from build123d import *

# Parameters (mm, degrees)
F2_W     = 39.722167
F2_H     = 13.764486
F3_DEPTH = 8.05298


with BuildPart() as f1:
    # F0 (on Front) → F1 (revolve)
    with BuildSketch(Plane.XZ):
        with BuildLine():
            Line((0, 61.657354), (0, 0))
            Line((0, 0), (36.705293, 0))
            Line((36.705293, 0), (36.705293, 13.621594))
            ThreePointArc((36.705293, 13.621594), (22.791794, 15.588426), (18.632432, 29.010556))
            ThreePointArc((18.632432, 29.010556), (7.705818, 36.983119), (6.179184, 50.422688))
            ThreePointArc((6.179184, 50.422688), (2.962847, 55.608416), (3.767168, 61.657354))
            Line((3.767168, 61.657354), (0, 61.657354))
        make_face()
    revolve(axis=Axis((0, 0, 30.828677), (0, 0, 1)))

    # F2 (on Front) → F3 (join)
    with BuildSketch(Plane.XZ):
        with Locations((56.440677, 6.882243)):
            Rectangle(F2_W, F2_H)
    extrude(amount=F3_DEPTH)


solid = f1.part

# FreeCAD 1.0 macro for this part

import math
import FreeCAD as App
import Part
import Sketcher

V = App.Vector


def add_polygon(sketch, points):
    """Adds a closed chain of lines whose ends are joined by coincident constraints."""
    first, n = sketch.GeometryCount, len(points)
    for a, b in zip(points, points[1:] + points[:1]):
        sketch.addGeometry(Part.LineSegment(App.Vector(*a, 0), App.Vector(*b, 0)), False)
    for i in range(n):
        sketch.addConstraint(Sketcher.Constraint("Coincident", first + i, 2, first + (i + 1) % n, 1))

doc = App.newDocument("Part")
body = doc.addObject("PartDesign::Body", "Body")

sketch1 = body.newObject("Sketcher::SketchObject", "Sketch")
sketch1.AttachmentSupport = (doc.getObject("XZ_Plane"), [""])
sketch1.MapMode = "FlatFace"
sketch1.addGeometry(Part.LineSegment(V(0, 61.7, 0), V(0, 0, 0)), False)
sketch1.addGeometry(Part.LineSegment(V(0, 0, 0), V(36.7, 0, 0)), False)
sketch1.addGeometry(Part.LineSegment(V(36.7, 0, 0), V(36.7, 13.6, 0)), False)
sketch1.addGeometry(Part.ArcOfCircle(Part.Circle(V(31.3, 25.6, 0), V(0, 0, 1), 13.1), math.radians(165), math.radians(294)), False)
sketch1.addGeometry(Part.ArcOfCircle(Part.Circle(V(22.2, 45.4, 0), V(0, 0, 1), 16.8), math.radians(163), math.radians(258)), False)
sketch1.addGeometry(Part.ArcOfCircle(Part.Circle(V(11.8, 57.5, 0), V(0, 0, 1), 9.1), math.radians(153), math.radians(231)), False)
sketch1.addGeometry(Part.LineSegment(V(3.8, 61.7, 0), V(0, 61.7, 0)), False)
sketch1.addConstraint(Sketcher.Constraint("Coincident", 0, 2, 1, 1))
sketch1.addConstraint(Sketcher.Constraint("Coincident", 1, 2, 2, 1))
sketch1.addConstraint(Sketcher.Constraint("Coincident", 2, 2, 3, 2))
sketch1.addConstraint(Sketcher.Constraint("Coincident", 3, 1, 4, 2))
sketch1.addConstraint(Sketcher.Constraint("Coincident", 4, 1, 5, 2))
sketch1.addConstraint(Sketcher.Constraint("Coincident", 5, 1, 6, 1))
sketch1.addConstraint(Sketcher.Constraint("Coincident", 6, 2, 0, 1))
sketch1.addConstraint(Sketcher.Constraint("Vertical", 0))
sketch1.addConstraint(Sketcher.Constraint("Horizontal", 1))
sketch1.addConstraint(Sketcher.Constraint("Vertical", 2))
sketch1.addConstraint(Sketcher.Constraint("Horizontal", 6))
sketch1.addConstraint(Sketcher.Constraint("Coincident", 0, 2, -1, 1))
sketch1.addConstraint(Sketcher.Constraint("Radius", 4, 16.824501))
sketch1.addConstraint(Sketcher.Constraint("Radius", 5, 9.054981))
sketch1.addConstraint(Sketcher.Constraint("Radius", 3, 13.123784))
sketch1.addConstraint(Sketcher.Constraint("DistanceY", 3, 1, 4, 3, 16.431101))
sketch1.addConstraint(Sketcher.Constraint("DistanceY", 5, 3, 5, 1, 4.1482))
sketch1.addConstraint(Sketcher.Constraint("DistanceY", 3, 1, 6, 2, 32.646798))
sketch1.addConstraint(Sketcher.Constraint("DistanceX", 1, 1, 1, 2, 36.705293))
sketch1.addConstraint(Sketcher.Constraint("DistanceX", 6, 2, 6, 1, 3.767168))
sketch1.addConstraint(Sketcher.Constraint("DistanceY", 0, 2, 0, 1, 61.657354))
sketch1.addConstraint(Sketcher.Constraint("DistanceY", 2, 1, 2, 2, 13.621594))
sketch1.addConstraint(Sketcher.Constraint("DistanceX", -1, 1, 4, 3, 22.249441))
revolution = body.newObject("PartDesign::Revolution", "Revolution")
revolution.Profile = sketch1
revolution.ReferenceAxis = (sketch1, ["V_Axis"])
revolution.Angle = 360

sketch2 = body.newObject("Sketcher::SketchObject", "Sketch001")
sketch2.AttachmentSupport = (doc.getObject("XZ_Plane"), [""])
sketch2.MapMode = "FlatFace"
add_polygon(sketch2, [(37, 14), (37, 0), (76, 0), (76, 14)])
sketch2.addConstraint(Sketcher.Constraint("Vertical", 0))
sketch2.addConstraint(Sketcher.Constraint("Horizontal", 1))
sketch2.addConstraint(Sketcher.Constraint("Vertical", 2))
sketch2.addConstraint(Sketcher.Constraint("Horizontal", 3))
sketch2.addConstraint(Sketcher.Constraint("PointOnObject", 0, 2, -1))
sketch2.addConstraint(Sketcher.Constraint("DistanceX", 1, 1, 1, 2, 39.722167))
sketch2.addConstraint(Sketcher.Constraint("DistanceY", 0, 2, 0, 1, 13.764486))
sketch2.addConstraint(Sketcher.Constraint("DistanceX", -1, 1, 1, 2, 76.301761))
pad1 = body.newObject("PartDesign::Pad", "Pad")
pad1.Profile = sketch2
pad1.Length = 8.05298

doc.recompute()
